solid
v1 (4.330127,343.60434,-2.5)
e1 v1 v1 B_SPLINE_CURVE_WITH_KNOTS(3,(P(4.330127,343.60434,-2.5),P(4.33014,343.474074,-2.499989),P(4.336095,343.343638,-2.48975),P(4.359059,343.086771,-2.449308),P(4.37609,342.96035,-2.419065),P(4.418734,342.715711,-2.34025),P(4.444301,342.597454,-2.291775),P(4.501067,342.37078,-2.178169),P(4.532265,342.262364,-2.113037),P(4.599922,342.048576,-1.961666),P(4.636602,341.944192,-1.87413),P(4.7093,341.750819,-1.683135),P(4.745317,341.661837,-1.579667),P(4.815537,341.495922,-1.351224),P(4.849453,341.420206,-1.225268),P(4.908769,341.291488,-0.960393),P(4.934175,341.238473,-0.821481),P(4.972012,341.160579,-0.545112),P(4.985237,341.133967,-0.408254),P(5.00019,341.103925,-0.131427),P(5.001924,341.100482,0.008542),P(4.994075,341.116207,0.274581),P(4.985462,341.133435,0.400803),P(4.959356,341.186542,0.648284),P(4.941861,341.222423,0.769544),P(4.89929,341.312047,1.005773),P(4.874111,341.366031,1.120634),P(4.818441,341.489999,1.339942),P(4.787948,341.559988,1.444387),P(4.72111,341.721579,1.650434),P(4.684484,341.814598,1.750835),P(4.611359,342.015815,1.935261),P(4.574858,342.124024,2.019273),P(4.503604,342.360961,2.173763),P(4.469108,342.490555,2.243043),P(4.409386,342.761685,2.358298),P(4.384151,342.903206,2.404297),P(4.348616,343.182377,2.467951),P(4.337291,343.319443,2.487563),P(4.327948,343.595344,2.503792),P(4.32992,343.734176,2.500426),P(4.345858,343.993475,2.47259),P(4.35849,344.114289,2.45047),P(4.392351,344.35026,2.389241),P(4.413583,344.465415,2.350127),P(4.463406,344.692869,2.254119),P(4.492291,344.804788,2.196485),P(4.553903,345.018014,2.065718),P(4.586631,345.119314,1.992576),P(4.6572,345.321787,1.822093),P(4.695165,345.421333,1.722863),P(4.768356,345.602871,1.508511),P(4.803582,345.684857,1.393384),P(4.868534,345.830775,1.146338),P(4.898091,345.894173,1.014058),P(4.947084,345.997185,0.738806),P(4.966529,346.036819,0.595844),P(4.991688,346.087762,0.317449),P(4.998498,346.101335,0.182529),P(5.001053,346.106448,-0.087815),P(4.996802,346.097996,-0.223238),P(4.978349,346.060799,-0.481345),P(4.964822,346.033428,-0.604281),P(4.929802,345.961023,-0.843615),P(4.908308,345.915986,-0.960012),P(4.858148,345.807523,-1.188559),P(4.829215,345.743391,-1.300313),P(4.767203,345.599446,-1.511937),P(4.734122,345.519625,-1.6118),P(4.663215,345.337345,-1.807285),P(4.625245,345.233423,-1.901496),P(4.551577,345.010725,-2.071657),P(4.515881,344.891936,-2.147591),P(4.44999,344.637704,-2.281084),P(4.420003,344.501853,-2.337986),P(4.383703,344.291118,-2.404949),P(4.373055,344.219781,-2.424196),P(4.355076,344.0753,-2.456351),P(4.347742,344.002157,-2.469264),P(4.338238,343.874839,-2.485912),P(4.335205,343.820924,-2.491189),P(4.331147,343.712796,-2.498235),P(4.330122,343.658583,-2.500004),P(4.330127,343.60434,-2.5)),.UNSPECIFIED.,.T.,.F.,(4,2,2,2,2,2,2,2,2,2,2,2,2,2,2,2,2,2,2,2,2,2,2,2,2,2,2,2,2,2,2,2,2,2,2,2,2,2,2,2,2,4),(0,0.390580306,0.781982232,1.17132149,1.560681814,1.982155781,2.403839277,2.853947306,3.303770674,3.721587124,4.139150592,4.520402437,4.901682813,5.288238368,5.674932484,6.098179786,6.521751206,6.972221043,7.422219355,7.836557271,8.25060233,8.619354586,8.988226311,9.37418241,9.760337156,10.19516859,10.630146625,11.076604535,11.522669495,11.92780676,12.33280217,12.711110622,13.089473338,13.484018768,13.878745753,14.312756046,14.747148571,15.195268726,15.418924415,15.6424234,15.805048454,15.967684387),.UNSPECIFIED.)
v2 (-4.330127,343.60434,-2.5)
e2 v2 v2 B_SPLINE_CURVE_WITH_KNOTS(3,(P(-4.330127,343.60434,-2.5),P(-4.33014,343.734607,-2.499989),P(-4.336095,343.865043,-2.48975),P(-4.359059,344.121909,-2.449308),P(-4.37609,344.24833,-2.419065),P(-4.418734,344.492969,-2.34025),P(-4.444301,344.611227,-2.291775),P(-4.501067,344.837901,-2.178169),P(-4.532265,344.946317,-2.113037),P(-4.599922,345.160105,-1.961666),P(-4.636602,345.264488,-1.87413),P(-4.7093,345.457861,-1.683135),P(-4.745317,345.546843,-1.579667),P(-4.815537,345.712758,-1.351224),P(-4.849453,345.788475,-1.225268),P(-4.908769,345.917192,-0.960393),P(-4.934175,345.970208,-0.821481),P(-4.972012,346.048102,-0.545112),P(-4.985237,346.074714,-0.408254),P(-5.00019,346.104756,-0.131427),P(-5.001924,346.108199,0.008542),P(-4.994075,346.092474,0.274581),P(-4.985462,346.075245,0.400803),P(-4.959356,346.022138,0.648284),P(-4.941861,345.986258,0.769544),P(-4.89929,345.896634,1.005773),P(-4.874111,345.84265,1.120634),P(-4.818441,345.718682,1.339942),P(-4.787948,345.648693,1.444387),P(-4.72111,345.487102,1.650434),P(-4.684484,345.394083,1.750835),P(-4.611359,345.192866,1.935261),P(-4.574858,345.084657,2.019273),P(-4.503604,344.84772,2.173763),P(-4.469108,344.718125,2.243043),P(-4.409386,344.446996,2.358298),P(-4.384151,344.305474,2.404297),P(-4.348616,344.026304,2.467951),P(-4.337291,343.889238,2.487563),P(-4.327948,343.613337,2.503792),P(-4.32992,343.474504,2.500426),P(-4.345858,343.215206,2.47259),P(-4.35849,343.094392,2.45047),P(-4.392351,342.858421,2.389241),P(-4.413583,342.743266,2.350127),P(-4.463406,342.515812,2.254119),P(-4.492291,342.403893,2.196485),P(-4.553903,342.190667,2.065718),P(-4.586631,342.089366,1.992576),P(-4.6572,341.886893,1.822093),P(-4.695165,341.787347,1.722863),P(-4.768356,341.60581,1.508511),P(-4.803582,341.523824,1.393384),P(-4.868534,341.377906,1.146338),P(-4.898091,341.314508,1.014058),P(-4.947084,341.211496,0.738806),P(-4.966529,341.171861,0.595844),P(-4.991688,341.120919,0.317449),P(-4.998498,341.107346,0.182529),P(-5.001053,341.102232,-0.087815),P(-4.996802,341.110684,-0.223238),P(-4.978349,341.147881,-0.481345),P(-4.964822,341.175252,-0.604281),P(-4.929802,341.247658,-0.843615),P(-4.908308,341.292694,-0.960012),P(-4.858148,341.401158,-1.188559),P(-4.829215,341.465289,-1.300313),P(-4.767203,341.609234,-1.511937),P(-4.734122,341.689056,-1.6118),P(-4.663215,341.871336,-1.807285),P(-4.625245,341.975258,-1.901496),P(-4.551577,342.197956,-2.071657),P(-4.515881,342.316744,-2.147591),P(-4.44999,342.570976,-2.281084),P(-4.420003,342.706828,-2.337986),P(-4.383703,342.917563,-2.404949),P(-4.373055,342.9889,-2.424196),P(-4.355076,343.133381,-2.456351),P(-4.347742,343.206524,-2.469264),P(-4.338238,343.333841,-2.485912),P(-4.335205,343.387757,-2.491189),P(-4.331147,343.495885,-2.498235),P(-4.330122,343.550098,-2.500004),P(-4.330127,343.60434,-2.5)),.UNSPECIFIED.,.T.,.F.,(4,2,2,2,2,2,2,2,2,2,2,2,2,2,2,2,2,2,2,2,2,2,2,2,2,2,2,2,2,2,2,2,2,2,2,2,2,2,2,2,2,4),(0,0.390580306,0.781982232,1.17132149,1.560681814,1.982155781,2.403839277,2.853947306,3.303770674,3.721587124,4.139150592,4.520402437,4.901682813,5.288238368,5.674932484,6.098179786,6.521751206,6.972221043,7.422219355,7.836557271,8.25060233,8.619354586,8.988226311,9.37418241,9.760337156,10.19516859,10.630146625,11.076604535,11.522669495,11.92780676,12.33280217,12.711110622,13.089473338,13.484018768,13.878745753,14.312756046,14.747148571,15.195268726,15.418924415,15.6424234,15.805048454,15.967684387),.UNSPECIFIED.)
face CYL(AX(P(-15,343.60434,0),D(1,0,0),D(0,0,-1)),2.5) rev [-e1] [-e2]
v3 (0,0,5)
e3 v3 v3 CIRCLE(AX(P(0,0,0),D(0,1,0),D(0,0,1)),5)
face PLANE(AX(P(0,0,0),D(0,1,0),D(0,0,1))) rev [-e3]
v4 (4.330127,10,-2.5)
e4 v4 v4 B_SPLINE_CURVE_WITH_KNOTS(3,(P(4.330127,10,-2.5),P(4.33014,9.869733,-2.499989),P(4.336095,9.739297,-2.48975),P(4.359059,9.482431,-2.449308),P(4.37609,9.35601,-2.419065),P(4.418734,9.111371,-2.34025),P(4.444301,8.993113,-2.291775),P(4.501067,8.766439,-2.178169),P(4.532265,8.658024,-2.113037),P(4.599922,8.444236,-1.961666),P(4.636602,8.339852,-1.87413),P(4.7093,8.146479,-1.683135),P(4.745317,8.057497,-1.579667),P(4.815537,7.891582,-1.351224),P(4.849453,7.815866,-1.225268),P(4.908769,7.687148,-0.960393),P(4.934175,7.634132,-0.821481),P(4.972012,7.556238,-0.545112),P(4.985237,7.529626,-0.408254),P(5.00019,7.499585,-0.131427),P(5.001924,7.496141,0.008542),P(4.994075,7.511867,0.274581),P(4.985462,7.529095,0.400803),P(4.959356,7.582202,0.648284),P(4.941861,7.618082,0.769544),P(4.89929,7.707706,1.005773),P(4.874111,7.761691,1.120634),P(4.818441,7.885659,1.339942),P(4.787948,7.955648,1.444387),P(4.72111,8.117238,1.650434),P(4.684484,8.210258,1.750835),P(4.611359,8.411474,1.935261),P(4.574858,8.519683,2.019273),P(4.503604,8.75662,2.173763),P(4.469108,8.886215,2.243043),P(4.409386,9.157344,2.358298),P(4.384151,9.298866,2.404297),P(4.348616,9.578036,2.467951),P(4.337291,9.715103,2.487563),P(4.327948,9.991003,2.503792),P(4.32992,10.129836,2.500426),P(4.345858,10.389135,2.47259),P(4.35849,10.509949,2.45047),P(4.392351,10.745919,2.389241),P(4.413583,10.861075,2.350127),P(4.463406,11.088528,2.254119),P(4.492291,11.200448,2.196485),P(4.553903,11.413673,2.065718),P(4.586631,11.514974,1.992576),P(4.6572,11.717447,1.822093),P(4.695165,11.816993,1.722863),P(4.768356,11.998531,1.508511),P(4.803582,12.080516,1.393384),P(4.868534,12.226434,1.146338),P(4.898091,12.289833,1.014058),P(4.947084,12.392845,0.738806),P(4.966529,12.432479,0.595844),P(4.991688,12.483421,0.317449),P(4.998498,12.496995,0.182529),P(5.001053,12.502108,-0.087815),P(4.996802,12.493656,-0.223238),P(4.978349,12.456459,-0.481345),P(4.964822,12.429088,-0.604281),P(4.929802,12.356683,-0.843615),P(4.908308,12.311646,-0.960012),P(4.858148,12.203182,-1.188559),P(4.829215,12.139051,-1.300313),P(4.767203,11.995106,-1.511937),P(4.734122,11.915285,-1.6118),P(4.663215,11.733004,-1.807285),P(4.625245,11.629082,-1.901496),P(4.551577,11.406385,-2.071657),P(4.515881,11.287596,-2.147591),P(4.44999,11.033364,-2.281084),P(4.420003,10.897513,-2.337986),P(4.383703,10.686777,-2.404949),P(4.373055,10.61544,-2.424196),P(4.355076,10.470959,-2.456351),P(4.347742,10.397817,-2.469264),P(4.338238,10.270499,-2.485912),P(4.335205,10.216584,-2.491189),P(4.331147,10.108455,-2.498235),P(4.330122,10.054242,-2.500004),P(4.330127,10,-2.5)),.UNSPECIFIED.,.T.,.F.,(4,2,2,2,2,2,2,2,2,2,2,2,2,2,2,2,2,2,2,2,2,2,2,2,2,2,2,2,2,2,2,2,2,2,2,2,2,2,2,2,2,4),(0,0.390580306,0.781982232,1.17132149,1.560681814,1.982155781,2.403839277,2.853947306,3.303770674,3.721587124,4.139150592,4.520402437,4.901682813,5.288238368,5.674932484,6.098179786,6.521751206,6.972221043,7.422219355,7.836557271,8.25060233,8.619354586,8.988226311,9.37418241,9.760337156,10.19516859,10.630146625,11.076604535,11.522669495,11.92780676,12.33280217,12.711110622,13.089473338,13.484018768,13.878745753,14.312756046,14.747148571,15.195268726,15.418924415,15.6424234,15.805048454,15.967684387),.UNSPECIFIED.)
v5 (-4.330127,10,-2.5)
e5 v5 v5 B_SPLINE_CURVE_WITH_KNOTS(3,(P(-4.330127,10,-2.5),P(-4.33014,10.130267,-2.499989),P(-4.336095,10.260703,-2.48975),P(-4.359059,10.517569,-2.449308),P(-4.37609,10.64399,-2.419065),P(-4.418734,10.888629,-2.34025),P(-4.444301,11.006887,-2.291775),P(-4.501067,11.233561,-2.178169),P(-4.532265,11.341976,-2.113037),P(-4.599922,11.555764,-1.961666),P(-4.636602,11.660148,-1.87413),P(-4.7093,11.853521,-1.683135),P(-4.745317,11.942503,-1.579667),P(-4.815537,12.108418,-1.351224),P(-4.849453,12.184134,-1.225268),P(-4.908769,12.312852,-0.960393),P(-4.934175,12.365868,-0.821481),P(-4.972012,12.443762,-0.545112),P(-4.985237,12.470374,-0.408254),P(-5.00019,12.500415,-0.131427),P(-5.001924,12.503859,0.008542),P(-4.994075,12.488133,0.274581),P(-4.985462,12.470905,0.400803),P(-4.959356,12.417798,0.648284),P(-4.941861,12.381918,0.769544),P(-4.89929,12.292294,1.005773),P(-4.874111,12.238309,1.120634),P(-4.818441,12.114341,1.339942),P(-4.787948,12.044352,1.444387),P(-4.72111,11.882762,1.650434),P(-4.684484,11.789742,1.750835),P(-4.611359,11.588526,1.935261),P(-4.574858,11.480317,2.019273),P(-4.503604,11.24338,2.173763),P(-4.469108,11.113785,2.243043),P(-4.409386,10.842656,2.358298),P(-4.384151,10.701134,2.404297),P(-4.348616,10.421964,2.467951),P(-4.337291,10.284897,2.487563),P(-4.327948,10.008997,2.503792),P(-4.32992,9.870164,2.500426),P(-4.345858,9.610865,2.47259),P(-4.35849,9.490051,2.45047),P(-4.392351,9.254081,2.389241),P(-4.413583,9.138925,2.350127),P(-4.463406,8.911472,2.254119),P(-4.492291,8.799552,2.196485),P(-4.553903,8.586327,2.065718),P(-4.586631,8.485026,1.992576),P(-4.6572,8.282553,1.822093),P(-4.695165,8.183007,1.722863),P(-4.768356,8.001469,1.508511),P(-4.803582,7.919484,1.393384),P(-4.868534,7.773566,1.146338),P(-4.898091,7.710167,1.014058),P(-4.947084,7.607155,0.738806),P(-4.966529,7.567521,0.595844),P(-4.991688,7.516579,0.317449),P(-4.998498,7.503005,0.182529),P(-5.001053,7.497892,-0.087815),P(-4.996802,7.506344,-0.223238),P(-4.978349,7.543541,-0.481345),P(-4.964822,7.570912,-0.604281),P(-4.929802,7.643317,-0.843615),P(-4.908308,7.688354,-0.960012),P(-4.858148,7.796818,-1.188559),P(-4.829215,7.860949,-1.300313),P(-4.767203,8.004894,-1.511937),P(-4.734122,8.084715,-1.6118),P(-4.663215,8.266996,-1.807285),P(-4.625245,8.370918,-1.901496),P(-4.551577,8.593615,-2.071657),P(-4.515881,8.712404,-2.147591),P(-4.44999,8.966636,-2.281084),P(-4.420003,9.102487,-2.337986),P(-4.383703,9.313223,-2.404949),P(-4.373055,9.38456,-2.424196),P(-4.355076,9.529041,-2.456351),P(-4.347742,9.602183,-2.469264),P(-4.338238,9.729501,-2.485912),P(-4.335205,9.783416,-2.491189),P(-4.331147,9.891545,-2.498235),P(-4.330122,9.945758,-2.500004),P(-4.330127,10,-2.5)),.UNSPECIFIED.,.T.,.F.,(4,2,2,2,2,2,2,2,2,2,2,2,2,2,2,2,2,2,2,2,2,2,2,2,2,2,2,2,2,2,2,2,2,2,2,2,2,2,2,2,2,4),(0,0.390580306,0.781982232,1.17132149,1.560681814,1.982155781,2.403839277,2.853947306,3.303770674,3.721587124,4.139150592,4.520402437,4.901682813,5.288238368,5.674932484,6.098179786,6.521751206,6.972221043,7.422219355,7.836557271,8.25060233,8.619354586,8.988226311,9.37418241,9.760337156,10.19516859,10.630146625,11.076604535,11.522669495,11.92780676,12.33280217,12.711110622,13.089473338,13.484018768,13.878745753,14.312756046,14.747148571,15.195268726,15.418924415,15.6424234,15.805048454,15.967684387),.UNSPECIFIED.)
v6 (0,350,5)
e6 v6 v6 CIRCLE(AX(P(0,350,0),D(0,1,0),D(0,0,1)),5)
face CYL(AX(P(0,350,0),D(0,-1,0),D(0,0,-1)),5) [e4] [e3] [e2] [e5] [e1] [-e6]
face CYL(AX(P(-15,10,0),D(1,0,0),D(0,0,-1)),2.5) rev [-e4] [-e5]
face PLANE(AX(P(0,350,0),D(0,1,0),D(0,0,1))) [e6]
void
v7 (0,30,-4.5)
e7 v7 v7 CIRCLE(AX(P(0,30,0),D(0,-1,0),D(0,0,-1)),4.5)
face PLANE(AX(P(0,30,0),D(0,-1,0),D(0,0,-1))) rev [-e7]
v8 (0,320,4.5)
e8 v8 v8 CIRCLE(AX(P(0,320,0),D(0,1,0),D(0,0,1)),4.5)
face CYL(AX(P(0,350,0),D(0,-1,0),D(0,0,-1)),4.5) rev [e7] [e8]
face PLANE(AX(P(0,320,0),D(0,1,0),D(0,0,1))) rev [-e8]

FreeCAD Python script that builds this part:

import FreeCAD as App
import Part
import Sketcher

V = App.Vector
Q = App.Units.Quantity

doc = App.newDocument("Part")
body = doc.addObject("PartDesign::Body", "Body")

# Sketch on XZ plane
sketch1 = body.newObject("Sketcher::SketchObject", "Sketch")
sketch1.AttachmentSupport = (doc.getObject("XZ_Plane"), [""])
sketch1.MapMode = "FlatFace"
sketch1.addGeometry(Part.Circle(V(0, 0, 0), V(0, 0, 1), 5), False)
sketch1.addGeometry(Part.Circle(V(0, 0, 0), V(0, 0, 1), 4.5), False)
sketch1.addConstraint(Sketcher.Constraint("Coincident", 0, 3, -1, 1))
sketch1.addConstraint(Sketcher.Constraint("Coincident", 1, 3, -1, 1))
sketch1.addConstraint(Sketcher.Constraint("Diameter", 0, Q("10 mm")))
sketch1.addConstraint(Sketcher.Constraint("Diameter", 1, Q("9 mm")))
pad1 = body.newObject("PartDesign::Pad", "Pad")
pad1.Profile = sketch1
pad1.Length = 350
pad1.Reversed = True

# Sketch on XZ plane
sketch2 = body.newObject("Sketcher::SketchObject", "Sketch001")
sketch2.AttachmentSupport = (doc.getObject("XZ_Plane"), [""])
sketch2.MapMode = "FlatFace"
sketch2.AttachmentOffset = App.Placement(V(0, 0, -350), App.Rotation())
sketch2.addGeometry(Part.Circle(V(0, 0, 0), V(0, 0, 1), 5), False)
sketch2.addConstraint(Sketcher.Constraint("Coincident", 0, 3, -1, 1))
sketch2.addConstraint(Sketcher.Constraint("Diameter", 0, Q("10 mm")))
pad2 = body.newObject("PartDesign::Pad", "Pad001")
pad2.Profile = sketch2
pad2.Length = 30

# Sketch on XZ plane
sketch3 = body.newObject("Sketcher::SketchObject", "Sketch002")
sketch3.AttachmentSupport = (doc.getObject("XZ_Plane"), [""])
sketch3.MapMode = "FlatFace"
sketch3.addGeometry(Part.Circle(V(0, 0, 0), V(0, 0, 1), 5), False)
sketch3.addConstraint(Sketcher.Constraint("Coincident", 0, 3, -1, 1))
sketch3.addConstraint(Sketcher.Constraint("Diameter", 0, Q("10 mm")))
pad3 = body.newObject("PartDesign::Pad", "Pad002")
pad3.Profile = sketch3
pad3.Length = 30
pad3.Reversed = True

# Sketch on YZ plane
sketch4 = body.newObject("Sketcher::SketchObject", "Sketch003")
sketch4.AttachmentSupport = (doc.getObject("YZ_Plane"), [""])
sketch4.MapMode = "FlatFace"
sketch4.addGeometry(Part.Circle(V(10, 0, 0), V(0, 0, 1), 2.5), False)
sketch4.addConstraint(Sketcher.Constraint("PointOnObject", 0, 3, -1))
sketch4.addConstraint(Sketcher.Constraint("Diameter", 0, Q("5 mm")))
sketch4.addConstraint(Sketcher.Constraint("DistanceX", -1, 1, 0, 3, Q("10 mm")))
pocket1 = body.newObject("PartDesign::Pocket", "Pocket")
pocket1.Profile = sketch4
pocket1.Length = 30
pocket1.Midplane = True

# Sketch on YZ plane
sketch5 = body.newObject("Sketcher::SketchObject", "Sketch004")
sketch5.AttachmentSupport = (doc.getObject("YZ_Plane"), [""])
sketch5.MapMode = "FlatFace"
sketch5.addGeometry(Part.Circle(V(343.6, 0, 0), V(0, 0, 1), 2.5), False)
sketch5.addConstraint(Sketcher.Constraint("PointOnObject", 0, 3, -1))
sketch5.addConstraint(Sketcher.Constraint("Diameter", 0, Q("5 mm")))
sketch5.addConstraint(Sketcher.Constraint("DistanceX", -1, 1, 0, 3, Q("343.60434 mm")))
pocket2 = body.newObject("PartDesign::Pocket", "Pocket001")
pocket2.Profile = sketch5
pocket2.Length = 30
pocket2.Midplane = True

doc.recompute()
